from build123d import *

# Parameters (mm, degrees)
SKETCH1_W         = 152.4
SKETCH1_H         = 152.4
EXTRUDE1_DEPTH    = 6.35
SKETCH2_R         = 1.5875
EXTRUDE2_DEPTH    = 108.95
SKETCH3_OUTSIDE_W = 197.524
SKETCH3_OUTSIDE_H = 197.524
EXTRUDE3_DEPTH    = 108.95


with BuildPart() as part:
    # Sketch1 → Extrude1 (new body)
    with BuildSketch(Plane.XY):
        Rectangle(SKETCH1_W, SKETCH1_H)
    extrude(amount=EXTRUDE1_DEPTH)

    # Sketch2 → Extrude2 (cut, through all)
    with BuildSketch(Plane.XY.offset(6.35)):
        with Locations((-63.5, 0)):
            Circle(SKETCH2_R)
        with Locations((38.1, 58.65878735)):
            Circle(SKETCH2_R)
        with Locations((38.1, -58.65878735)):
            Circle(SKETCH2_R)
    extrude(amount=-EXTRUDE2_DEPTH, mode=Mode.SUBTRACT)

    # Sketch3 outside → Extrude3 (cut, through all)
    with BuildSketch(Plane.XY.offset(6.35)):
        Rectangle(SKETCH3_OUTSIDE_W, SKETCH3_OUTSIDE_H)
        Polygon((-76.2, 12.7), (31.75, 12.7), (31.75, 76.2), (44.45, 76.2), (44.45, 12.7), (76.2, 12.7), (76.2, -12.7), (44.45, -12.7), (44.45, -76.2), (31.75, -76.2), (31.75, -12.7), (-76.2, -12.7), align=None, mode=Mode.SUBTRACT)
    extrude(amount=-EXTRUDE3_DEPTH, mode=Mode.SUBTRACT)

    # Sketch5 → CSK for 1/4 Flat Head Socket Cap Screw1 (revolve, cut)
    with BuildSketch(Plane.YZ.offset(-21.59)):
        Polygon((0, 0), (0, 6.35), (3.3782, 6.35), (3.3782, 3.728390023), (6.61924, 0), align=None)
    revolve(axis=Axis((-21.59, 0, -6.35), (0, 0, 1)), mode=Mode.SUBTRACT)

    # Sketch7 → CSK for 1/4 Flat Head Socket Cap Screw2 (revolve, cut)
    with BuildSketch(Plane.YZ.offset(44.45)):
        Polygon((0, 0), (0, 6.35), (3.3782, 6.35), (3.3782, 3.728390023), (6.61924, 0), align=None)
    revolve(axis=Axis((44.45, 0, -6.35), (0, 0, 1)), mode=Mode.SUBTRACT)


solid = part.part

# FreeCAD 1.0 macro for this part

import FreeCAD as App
import Part
import Sketcher

V = App.Vector
Q = App.Units.Quantity


def add_polygon(sketch, points):
    """Adds a closed chain of lines whose ends are joined by coincident constraints."""
    first, n = sketch.GeometryCount, len(points)
    for a, b in zip(points, points[1:] + points[:1]):
        sketch.addGeometry(Part.LineSegment(App.Vector(*a, 0), App.Vector(*b, 0)), False)
    for i in range(n):
        sketch.addConstraint(Sketcher.Constraint("Coincident", first + i, 2, first + (i + 1) % n, 1))

doc = App.newDocument("Part")
body = doc.addObject("PartDesign::Body", "Body")

sketch1 = doc.addObject("Sketcher::SketchObject", "Sketch")
body.addObject(sketch1)
sketch1.AttachmentSupport = (doc.XY_Plane, [""])
sketch1.MapMode = "FlatFace"
add_polygon(sketch1, [(-76.2, 76.2), (-76.2, -76.2), (76.2, -76.2), (76.2, 76.2)])
sketch1.addConstraint(Sketcher.Constraint("Vertical", 0))
sketch1.addConstraint(Sketcher.Constraint("Horizontal", 1))
sketch1.addConstraint(Sketcher.Constraint("Vertical", 2))
sketch1.addConstraint(Sketcher.Constraint("Horizontal", 3))
sketch1.addConstraint(Sketcher.Constraint("Symmetric", 0, 2, 2, 2, -1, 1))
sketch1.addConstraint(Sketcher.Constraint("Equal", 3, 0))
sketch1.addConstraint(Sketcher.Constraint("DistanceX", 1, 1, 1, 2, Q("6 in")))
pad1 = doc.addObject("PartDesign::Pad", "Pad")
body.addObject(pad1)
pad1.Profile = sketch1
pad1.Length = Q("0.25 in")

sketch2 = doc.addObject("Sketcher::SketchObject", "Sketch001")
body.addObject(sketch2)
sketch2.AttachmentSupport = (doc.XY_Plane, [""])
sketch2.MapMode = "FlatFace"
sketch2.AttachmentOffset = App.Placement(V(0, 0, 0.25 * 25.4), App.Rotation())
sketch2.addGeometry(Part.Circle(V(-63.5, 0, 0), V(0, 0, 1), 1.5875), False)
sketch2.addGeometry(Part.Circle(V(38.1, 58.658787, 0), V(0, 0, 1), 1.5875), False)
sketch2.addGeometry(Part.Circle(V(38.1, -58.658787, 0), V(0, 0, 1), 1.5875), False)
sketch2.addConstraint(Sketcher.Constraint("Equal", 0, 1))
sketch2.addConstraint(Sketcher.Constraint("Equal", 1, 2))
sketch2.addConstraint(Sketcher.Constraint("Symmetric", 1, 3, 2, 3, -1))
sketch2.addConstraint(Sketcher.Constraint("PointOnObject", 0, 3, -1))
sketch2.addConstraint(Sketcher.Constraint("Diameter", 0, Q("0.125 in")))
sketch2.addConstraint(Sketcher.Constraint("DistanceX", 0, 3, 1, 3, Q("4 in")))
sketch2.addConstraint(Sketcher.Constraint("DistanceX", 0, 3, -1, 1, Q("2.5 in")))
sketch2.addConstraint(Sketcher.Constraint("DistanceY", -1, 1, 1, 3, 58.658787))
pocket1 = doc.addObject("PartDesign::Pocket", "Pocket")
body.addObject(pocket1)
pocket1.Profile = sketch2
pocket1.Type = "ThroughAll"

sketch3 = doc.addObject("Sketcher::SketchObject", "Sketch002")
body.addObject(sketch3)
sketch3.AttachmentSupport = (doc.XY_Plane, [""])
sketch3.MapMode = "FlatFace"
sketch3.AttachmentOffset = App.Placement(V(0, 0, 0.25 * 25.4), App.Rotation())
add_polygon(sketch3, [(-98.762, 98.762), (-98.762, -98.762), (98.762, -98.762), (98.762, 98.762)])
add_polygon(sketch3, [(-76.2, -12.7), (-76.2, 12.7), (31.75, 12.7), (31.75, 76.2), (44.45, 76.2), (44.45, 12.7), (76.2, 12.7), (76.2, -12.7), (44.45, -12.7), (44.45, -76.2), (31.75, -76.2), (31.75, -12.7)])
sketch3.addConstraint(Sketcher.Constraint("Vertical", 0))
sketch3.addConstraint(Sketcher.Constraint("Horizontal", 1))
sketch3.addConstraint(Sketcher.Constraint("Vertical", 2))
sketch3.addConstraint(Sketcher.Constraint("Horizontal", 3))
sketch3.addConstraint(Sketcher.Constraint("Vertical", 4))
sketch3.addConstraint(Sketcher.Constraint("Horizontal", 5))
sketch3.addConstraint(Sketcher.Constraint("Vertical", 6))
sketch3.addConstraint(Sketcher.Constraint("Horizontal", 7))
sketch3.addConstraint(Sketcher.Constraint("Vertical", 8))
sketch3.addConstraint(Sketcher.Constraint("Horizontal", 9))
sketch3.addConstraint(Sketcher.Constraint("Vertical", 10))
sketch3.addConstraint(Sketcher.Constraint("Horizontal", 11))
sketch3.addConstraint(Sketcher.Constraint("Vertical", 12))
sketch3.addConstraint(Sketcher.Constraint("Horizontal", 13))
sketch3.addConstraint(Sketcher.Constraint("Vertical", 14))
sketch3.addConstraint(Sketcher.Constraint("Horizontal", 15))
sketch3.addConstraint(Sketcher.Constraint("Symmetric", 0, 2, 2, 2, -1, 1))
sketch3.addConstraint(Sketcher.Constraint("Symmetric", 4, 2, 10, 2, -1, 1))
sketch3.addConstraint(Sketcher.Constraint("Symmetric", 8, 2, 11, 2, -1))
sketch3.addConstraint(Sketcher.Constraint("Symmetric", 6, 2, 13, 2, -1))
sketch3.addConstraint(Sketcher.Constraint("Horizontal", 11, 2, 14, 2))
sketch3.addConstraint(Sketcher.Constraint("Equal", 3, 0))
sketch3.addConstraint(Sketcher.Constraint("DistanceY", 4, 1, 4, 2, Q("1 in")))
sketch3.addConstraint(Sketcher.Constraint("DistanceX", 7, 1, 7, 2, Q("0.5 in")))
sketch3.addConstraint(Sketcher.Constraint("DistanceY", 6, 1, 6, 2, Q("2.5 in")))
sketch3.addConstraint(Sketcher.Constraint("DistanceX", 4, 2, -1, 1, Q("3 in")))
sketch3.addConstraint(Sketcher.Constraint("DistanceX", 5, 1, 5, 2, Q("4.25 in")))
sketch3.addConstraint(Sketcher.Constraint("DistanceX", 1, 1, 1, 2, 197.524))
pocket2 = doc.addObject("PartDesign::Pocket", "Pocket001")
body.addObject(pocket2)
pocket2.Profile = sketch3
pocket2.Type = "ThroughAll"

sketch4 = doc.addObject("Sketcher::SketchObject", "Sketch003")
body.addObject(sketch4)
sketch4.AttachmentSupport = (doc.YZ_Plane, [""])
sketch4.MapMode = "FlatFace"
sketch4.AttachmentOffset = App.Placement(V(0, 0, -0.85 * 25.4), App.Rotation())
add_polygon(sketch4, [(0, 6.35), (0, 0), (6.61924, 0), (3.3782, 3.72839), (3.3782, 6.35)])
sketch4.addConstraint(Sketcher.Constraint("Vertical", 0))
sketch4.addConstraint(Sketcher.Constraint("Horizontal", 1))
sketch4.addConstraint(Sketcher.Constraint("Vertical", 3))
sketch4.addConstraint(Sketcher.Constraint("Horizontal", 4))
sketch4.addConstraint(Sketcher.Constraint("Coincident", 0, 2, -1, 1))
sketch4.addConstraint(Sketcher.Constraint("Angle", 2, Q("131 deg")))
sketch4.addConstraint(Sketcher.Constraint("DistanceY", 0, 2, 0, 1, Q("0.25 in")))
sketch4.addConstraint(Sketcher.Constraint("DistanceX", 4, 2, 4, 1, Q("0.133 in")))
sketch4.addConstraint(Sketcher.Constraint("DistanceX", 1, 1, 1, 2, Q("0.2606 in")))
groove = doc.addObject("PartDesign::Groove", "Groove")
body.addObject(groove)
groove.Profile = sketch4
groove.ReferenceAxis = (sketch4, ["V_Axis"])
groove.Angle = 360

sketch5 = doc.addObject("Sketcher::SketchObject", "Sketch004")
body.addObject(sketch5)
sketch5.AttachmentSupport = (doc.YZ_Plane, [""])
sketch5.MapMode = "FlatFace"
sketch5.AttachmentOffset = App.Placement(V(0, 0, 1.75 * 25.4), App.Rotation())
add_polygon(sketch5, [(0, 6.35), (0, 0), (6.61924, 0), (3.3782, 3.72839), (3.3782, 6.35)])
sketch5.addConstraint(Sketcher.Constraint("Vertical", 0))
sketch5.addConstraint(Sketcher.Constraint("Horizontal", 1))
sketch5.addConstraint(Sketcher.Constraint("Vertical", 3))
sketch5.addConstraint(Sketcher.Constraint("Horizontal", 4))
sketch5.addConstraint(Sketcher.Constraint("Coincident", 0, 2, -1, 1))
sketch5.addConstraint(Sketcher.Constraint("Angle", 2, Q("131 deg")))
sketch5.addConstraint(Sketcher.Constraint("DistanceY", 0, 2, 0, 1, Q("0.25 in")))
sketch5.addConstraint(Sketcher.Constraint("DistanceX", 4, 2, 4, 1, Q("0.133 in")))
sketch5.addConstraint(Sketcher.Constraint("DistanceX", 1, 1, 1, 2, Q("0.2606 in")))
groove2 = doc.addObject("PartDesign::Groove", "Groove001")
body.addObject(groove2)
groove2.Profile = sketch5
groove2.ReferenceAxis = (sketch5, ["V_Axis"])
groove2.Angle = 360

doc.recompute()
